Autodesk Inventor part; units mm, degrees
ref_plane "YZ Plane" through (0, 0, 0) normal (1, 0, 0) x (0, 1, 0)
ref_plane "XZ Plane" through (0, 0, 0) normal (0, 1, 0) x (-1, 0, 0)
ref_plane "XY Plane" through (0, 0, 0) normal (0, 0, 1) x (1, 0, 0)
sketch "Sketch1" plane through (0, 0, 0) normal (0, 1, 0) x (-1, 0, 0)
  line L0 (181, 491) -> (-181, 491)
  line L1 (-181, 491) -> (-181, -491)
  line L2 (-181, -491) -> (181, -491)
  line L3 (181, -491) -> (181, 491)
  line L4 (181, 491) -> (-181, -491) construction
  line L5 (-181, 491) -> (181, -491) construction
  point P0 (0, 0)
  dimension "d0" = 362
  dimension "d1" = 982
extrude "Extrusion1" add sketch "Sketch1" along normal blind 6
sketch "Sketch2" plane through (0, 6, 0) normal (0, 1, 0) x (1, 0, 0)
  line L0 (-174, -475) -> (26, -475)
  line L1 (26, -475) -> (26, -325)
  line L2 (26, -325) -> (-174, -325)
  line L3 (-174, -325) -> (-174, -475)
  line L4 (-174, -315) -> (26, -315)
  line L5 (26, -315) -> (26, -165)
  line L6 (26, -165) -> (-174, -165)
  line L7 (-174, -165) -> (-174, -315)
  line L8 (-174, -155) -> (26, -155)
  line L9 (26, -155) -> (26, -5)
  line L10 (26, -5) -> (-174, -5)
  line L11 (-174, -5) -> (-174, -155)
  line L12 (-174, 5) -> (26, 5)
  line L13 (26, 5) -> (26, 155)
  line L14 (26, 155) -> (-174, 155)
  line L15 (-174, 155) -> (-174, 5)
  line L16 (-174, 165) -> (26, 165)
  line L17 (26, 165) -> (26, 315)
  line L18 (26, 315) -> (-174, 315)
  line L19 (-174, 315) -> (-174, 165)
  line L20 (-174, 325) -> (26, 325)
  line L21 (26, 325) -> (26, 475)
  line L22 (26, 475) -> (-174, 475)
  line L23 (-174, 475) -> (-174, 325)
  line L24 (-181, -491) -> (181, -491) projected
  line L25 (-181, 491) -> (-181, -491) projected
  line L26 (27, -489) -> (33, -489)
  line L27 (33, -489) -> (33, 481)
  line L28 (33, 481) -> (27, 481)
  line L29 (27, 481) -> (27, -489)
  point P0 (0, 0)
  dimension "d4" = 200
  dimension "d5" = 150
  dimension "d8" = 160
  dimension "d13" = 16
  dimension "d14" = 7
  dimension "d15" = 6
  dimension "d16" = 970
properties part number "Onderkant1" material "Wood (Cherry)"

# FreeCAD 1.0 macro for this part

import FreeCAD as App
import Part
import Sketcher

V = App.Vector
Q = App.Units.Quantity

doc = App.newDocument("Part")
params = doc.addObject("Spreadsheet::Sheet", "Params")
for row, (alias, value) in enumerate([
    ("sketch1_width", "362 mm"),
    ("sketch1_height", "982 mm"),
    ("pad1_length", "6 mm"),
], start=1):
    params.set(f"A{row}", alias)
    params.set(f"B{row}", "=" + value)
    params.setAlias(f"B{row}", alias)

body = doc.addObject("PartDesign::Body", "Body")

# Sketch on XZ plane
sketch1 = body.newObject("Sketcher::SketchObject", "Sketch")
sketch1.AttachmentSupport = (doc.getObject("XZ_Plane"), [""])
sketch1.MapMode = "FlatFace"
sketch1.addGeometry(Part.LineSegment(V(-181, -491, 0), V(-181, 491, 0)), False)
sketch1.addGeometry(Part.LineSegment(V(-181, 491, 0), V(181, 491, 0)), False)
sketch1.addGeometry(Part.LineSegment(V(181, 491, 0), V(181, -491, 0)), False)
sketch1.addGeometry(Part.LineSegment(V(181, -491, 0), V(-181, -491, 0)), False)
sketch1.addConstraint(Sketcher.Constraint("Coincident", 0, 2, 1, 1))
sketch1.addConstraint(Sketcher.Constraint("Coincident", 1, 2, 2, 1))
sketch1.addConstraint(Sketcher.Constraint("Coincident", 2, 2, 3, 1))
sketch1.addConstraint(Sketcher.Constraint("Coincident", 3, 2, 0, 1))
sketch1.addConstraint(Sketcher.Constraint("Vertical", 0))
sketch1.addConstraint(Sketcher.Constraint("Horizontal", 1))
sketch1.addConstraint(Sketcher.Constraint("Vertical", 2))
sketch1.addConstraint(Sketcher.Constraint("Horizontal", 3))
sketch1.addConstraint(Sketcher.Constraint("Symmetric", 0, 2, 2, 2, -1, 1))
sketch1.addConstraint(Sketcher.Constraint("DistanceX", 1, 1, 1, 2, Q("362 mm")))
sketch1.addConstraint(Sketcher.Constraint("DistanceY", 0, 1, 0, 2, Q("982 mm")))
sketch1.setExpression("Constraints[9]", "Params.sketch1_width")
sketch1.setExpression("Constraints[10]", "Params.sketch1_height")
pad1 = body.newObject("PartDesign::Pad", "Pad")
pad1.Profile = sketch1
pad1.setExpression("Length", "Params.pad1_length")
pad1.Reversed = True

doc.recompute()
